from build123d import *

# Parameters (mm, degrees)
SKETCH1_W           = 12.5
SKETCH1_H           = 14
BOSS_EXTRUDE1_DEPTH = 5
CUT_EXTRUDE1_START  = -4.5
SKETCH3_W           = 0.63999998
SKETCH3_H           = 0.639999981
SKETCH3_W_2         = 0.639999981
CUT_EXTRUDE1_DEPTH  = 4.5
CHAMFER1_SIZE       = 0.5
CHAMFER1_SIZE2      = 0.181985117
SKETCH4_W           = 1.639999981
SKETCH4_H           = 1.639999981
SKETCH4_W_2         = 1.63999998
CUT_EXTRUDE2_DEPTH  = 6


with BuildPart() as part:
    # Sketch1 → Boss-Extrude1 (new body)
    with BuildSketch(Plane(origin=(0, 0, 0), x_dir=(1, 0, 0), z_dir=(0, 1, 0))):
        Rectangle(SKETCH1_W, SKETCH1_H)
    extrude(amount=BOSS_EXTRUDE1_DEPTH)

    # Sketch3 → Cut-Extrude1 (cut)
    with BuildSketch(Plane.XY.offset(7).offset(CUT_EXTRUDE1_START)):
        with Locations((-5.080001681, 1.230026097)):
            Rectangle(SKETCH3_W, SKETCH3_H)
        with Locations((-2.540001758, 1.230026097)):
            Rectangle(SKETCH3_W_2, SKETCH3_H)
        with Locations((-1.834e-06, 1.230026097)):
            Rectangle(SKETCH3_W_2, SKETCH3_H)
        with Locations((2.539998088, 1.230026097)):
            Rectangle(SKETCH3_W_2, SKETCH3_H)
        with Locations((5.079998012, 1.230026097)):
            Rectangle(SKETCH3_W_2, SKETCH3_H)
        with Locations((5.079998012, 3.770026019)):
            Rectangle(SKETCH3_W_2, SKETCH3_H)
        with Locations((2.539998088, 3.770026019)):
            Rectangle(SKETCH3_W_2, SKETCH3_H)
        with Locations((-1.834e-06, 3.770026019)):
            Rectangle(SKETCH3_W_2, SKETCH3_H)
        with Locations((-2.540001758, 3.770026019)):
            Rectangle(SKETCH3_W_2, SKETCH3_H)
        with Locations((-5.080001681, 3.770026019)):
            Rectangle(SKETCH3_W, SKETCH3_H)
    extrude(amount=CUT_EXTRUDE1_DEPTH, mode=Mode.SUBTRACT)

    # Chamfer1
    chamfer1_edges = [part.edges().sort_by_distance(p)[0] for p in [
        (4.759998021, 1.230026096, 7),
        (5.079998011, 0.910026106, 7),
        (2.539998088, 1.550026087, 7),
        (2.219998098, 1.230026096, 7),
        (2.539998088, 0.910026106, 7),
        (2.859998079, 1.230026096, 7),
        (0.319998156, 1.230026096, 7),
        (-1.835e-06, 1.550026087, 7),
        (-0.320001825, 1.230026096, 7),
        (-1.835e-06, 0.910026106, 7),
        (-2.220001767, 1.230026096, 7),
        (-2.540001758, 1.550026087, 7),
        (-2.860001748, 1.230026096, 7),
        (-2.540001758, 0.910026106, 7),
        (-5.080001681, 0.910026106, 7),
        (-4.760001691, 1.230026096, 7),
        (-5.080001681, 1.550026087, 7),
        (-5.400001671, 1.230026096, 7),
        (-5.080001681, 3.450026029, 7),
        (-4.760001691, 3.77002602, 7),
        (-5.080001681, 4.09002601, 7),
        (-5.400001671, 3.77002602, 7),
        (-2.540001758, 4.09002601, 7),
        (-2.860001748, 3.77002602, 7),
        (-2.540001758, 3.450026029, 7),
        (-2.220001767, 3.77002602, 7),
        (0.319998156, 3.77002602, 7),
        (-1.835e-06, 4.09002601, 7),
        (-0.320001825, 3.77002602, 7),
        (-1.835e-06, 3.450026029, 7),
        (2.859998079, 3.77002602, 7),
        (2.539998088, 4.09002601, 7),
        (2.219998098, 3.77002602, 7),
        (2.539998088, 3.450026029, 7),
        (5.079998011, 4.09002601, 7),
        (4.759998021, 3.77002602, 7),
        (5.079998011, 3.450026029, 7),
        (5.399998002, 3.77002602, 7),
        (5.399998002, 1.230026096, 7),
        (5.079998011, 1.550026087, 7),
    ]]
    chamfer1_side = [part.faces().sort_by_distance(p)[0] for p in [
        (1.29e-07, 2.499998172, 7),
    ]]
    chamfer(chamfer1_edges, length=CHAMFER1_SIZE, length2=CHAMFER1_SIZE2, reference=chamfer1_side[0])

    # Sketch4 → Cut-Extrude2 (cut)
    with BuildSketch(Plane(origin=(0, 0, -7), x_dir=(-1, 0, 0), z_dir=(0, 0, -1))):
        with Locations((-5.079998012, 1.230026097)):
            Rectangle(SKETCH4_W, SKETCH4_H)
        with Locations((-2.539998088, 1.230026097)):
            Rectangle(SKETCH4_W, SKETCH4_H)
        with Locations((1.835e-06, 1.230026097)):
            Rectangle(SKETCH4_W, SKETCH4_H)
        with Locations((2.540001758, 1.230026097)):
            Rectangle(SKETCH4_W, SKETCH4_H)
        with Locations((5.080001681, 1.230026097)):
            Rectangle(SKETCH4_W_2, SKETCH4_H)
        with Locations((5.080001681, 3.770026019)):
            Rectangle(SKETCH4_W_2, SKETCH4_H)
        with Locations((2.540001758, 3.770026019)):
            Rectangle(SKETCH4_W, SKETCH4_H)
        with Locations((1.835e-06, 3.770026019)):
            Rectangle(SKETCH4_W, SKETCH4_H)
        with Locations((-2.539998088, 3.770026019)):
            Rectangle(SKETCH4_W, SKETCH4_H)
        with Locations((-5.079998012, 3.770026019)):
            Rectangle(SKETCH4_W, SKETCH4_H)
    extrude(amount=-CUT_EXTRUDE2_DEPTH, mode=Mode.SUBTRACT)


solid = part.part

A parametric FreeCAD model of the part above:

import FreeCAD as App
import Part
import Sketcher
from FreeCAD import Vector
Q = App.Units.Quantity


def edges_at(feature, points):
    """Names of the edges that pass closest to the given points."""
    edges = feature.Shape.Edges
    near = lambda p: min(range(len(edges)), key=lambda i: edges[i].distToShape(Part.Vertex(*p))[0])
    return sorted({f"Edge{near(p) + 1}" for p in points})

doc = App.newDocument("Part")
params = doc.addObject("Spreadsheet::Sheet", "Params")
for row, (alias, value) in enumerate([
    ("sketch1_height", "14 mm"),
    ("sketch1_width", "12.5 mm"),
    ("pad1_length", "5 mm"),
    ("sketch2_width", "0.64 mm"),
    ("pocket1_length", "4.5 mm"),
    ("chamfer_size", "0.5 mm"),
    ("chamfer_size2", "0.181985 mm"),
    ("sketch3_width", "1.64 mm"),
    ("pocket2_length", "6 mm"),
], start=1):
    params.set(f"A{row}", alias)
    params.set(f"B{row}", "=" + value)
    params.setAlias(f"B{row}", alias)

body = doc.addObject("PartDesign::Body", "Body")

sketch1 = body.newObject("Sketcher::SketchObject", "Sketch")
sketch1.AttachmentSupport = (doc.getObject("XZ_Plane"), [""])
sketch1.MapMode = "FlatFace"
sketch1.addGeometry(Part.LineSegment(Vector(-6, -7, 0), Vector(-6, 7, 0)), False)
sketch1.addGeometry(Part.LineSegment(Vector(-6, 7, 0), Vector(6, 7, 0)), False)
sketch1.addGeometry(Part.LineSegment(Vector(6, 7, 0), Vector(6, -7, 0)), False)
sketch1.addGeometry(Part.LineSegment(Vector(6, -7, 0), Vector(-6, -7, 0)), False)
sketch1.addConstraint(Sketcher.Constraint("Coincident", 0, 2, 1, 1))
sketch1.addConstraint(Sketcher.Constraint("Coincident", 1, 2, 2, 1))
sketch1.addConstraint(Sketcher.Constraint("Coincident", 2, 2, 3, 1))
sketch1.addConstraint(Sketcher.Constraint("Coincident", 3, 2, 0, 1))
sketch1.addConstraint(Sketcher.Constraint("Vertical", 0))
sketch1.addConstraint(Sketcher.Constraint("Horizontal", 1))
sketch1.addConstraint(Sketcher.Constraint("Vertical", 2))
sketch1.addConstraint(Sketcher.Constraint("Horizontal", 3))
sketch1.addConstraint(Sketcher.Constraint("Symmetric", 0, 2, 2, 2, -1, 1))
sketch1.addConstraint(Sketcher.Constraint("DistanceY", 0, 1, 0, 2, Q("14 mm")))
sketch1.addConstraint(Sketcher.Constraint("DistanceX", 1, 1, 1, 2, Q("12.5 mm")))
sketch1.setExpression("Constraints[9]", "Params.sketch1_height")
sketch1.setExpression("Constraints[10]", "Params.sketch1_width")
pad1 = body.newObject("PartDesign::Pad", "Pad")
pad1.Profile = sketch1
pad1.setExpression("Length", "Params.pad1_length")
pad1.Reversed = True

sketch2 = body.newObject("Sketcher::SketchObject", "Sketch001")
sketch2.AttachmentSupport = (doc.getObject("XY_Plane"), [""])
sketch2.MapMode = "FlatFace"
sketch2.AttachmentOffset = App.Placement(Vector(0, 0, 2.5), App.Rotation())
sketch2.addGeometry(Part.LineSegment(Vector(-5.4, 1.6, 0), Vector(-5.4, 0.9, 0)), False)
sketch2.addGeometry(Part.LineSegment(Vector(-5.4, 0.9, 0), Vector(-4.8, 0.9, 0)), False)
sketch2.addGeometry(Part.LineSegment(Vector(-4.8, 0.9, 0), Vector(-4.8, 1.6, 0)), False)
sketch2.addGeometry(Part.LineSegment(Vector(-4.8, 1.6, 0), Vector(-5.4, 1.6, 0)), False)
sketch2.addGeometry(Part.LineSegment(Vector(-2.9, 1.6, 0), Vector(-2.9, 0.9, 0)), False)
sketch2.addGeometry(Part.LineSegment(Vector(-2.9, 0.9, 0), Vector(-2.2, 0.9, 0)), False)
sketch2.addGeometry(Part.LineSegment(Vector(-2.2, 0.9, 0), Vector(-2.2, 1.6, 0)), False)
sketch2.addGeometry(Part.LineSegment(Vector(-2.2, 1.6, 0), Vector(-2.9, 1.6, 0)), False)
sketch2.addGeometry(Part.LineSegment(Vector(-0.3, 1.6, 0), Vector(-0.3, 0.9, 0)), False)
sketch2.addGeometry(Part.LineSegment(Vector(-0.3, 0.9, 0), Vector(0.3, 0.9, 0)), False)
sketch2.addGeometry(Part.LineSegment(Vector(0.3, 0.9, 0), Vector(0.3, 1.6, 0)), False)
sketch2.addGeometry(Part.LineSegment(Vector(0.3, 1.6, 0), Vector(-0.3, 1.6, 0)), False)
sketch2.addGeometry(Part.LineSegment(Vector(2.2, 1.6, 0), Vector(2.2, 0.9, 0)), False)
sketch2.addGeometry(Part.LineSegment(Vector(2.2, 0.9, 0), Vector(2.9, 0.9, 0)), False)
sketch2.addGeometry(Part.LineSegment(Vector(2.9, 0.9, 0), Vector(2.9, 1.6, 0)), False)
sketch2.addGeometry(Part.LineSegment(Vector(2.9, 1.6, 0), Vector(2.2, 1.6, 0)), False)
sketch2.addGeometry(Part.LineSegment(Vector(4.8, 1.6, 0), Vector(4.8, 0.9, 0)), False)
sketch2.addGeometry(Part.LineSegment(Vector(4.8, 0.9, 0), Vector(5.4, 0.9, 0)), False)
sketch2.addGeometry(Part.LineSegment(Vector(5.4, 0.9, 0), Vector(5.4, 1.6, 0)), False)
sketch2.addGeometry(Part.LineSegment(Vector(5.4, 1.6, 0), Vector(4.8, 1.6, 0)), False)
sketch2.addGeometry(Part.LineSegment(Vector(4.8, 4.1, 0), Vector(4.8, 3.5, 0)), False)
sketch2.addGeometry(Part.LineSegment(Vector(4.8, 3.5, 0), Vector(5.4, 3.5, 0)), False)
sketch2.addGeometry(Part.LineSegment(Vector(5.4, 3.5, 0), Vector(5.4, 4.1, 0)), False)
sketch2.addGeometry(Part.LineSegment(Vector(5.4, 4.1, 0), Vector(4.8, 4.1, 0)), False)
sketch2.addGeometry(Part.LineSegment(Vector(2.2, 4.1, 0), Vector(2.2, 3.5, 0)), False)
sketch2.addGeometry(Part.LineSegment(Vector(2.2, 3.5, 0), Vector(2.9, 3.5, 0)), False)
sketch2.addGeometry(Part.LineSegment(Vector(2.9, 3.5, 0), Vector(2.9, 4.1, 0)), False)
sketch2.addGeometry(Part.LineSegment(Vector(2.9, 4.1, 0), Vector(2.2, 4.1, 0)), False)
sketch2.addGeometry(Part.LineSegment(Vector(-0.3, 4.1, 0), Vector(-0.3, 3.5, 0)), False)
sketch2.addGeometry(Part.LineSegment(Vector(-0.3, 3.5, 0), Vector(0.3, 3.5, 0)), False)
sketch2.addGeometry(Part.LineSegment(Vector(0.3, 3.5, 0), Vector(0.3, 4.1, 0)), False)
sketch2.addGeometry(Part.LineSegment(Vector(0.3, 4.1, 0), Vector(-0.3, 4.1, 0)), False)
sketch2.addGeometry(Part.LineSegment(Vector(-2.9, 4.1, 0), Vector(-2.9, 3.5, 0)), False)
sketch2.addGeometry(Part.LineSegment(Vector(-2.9, 3.5, 0), Vector(-2.2, 3.5, 0)), False)
sketch2.addGeometry(Part.LineSegment(Vector(-2.2, 3.5, 0), Vector(-2.2, 4.1, 0)), False)
sketch2.addGeometry(Part.LineSegment(Vector(-2.2, 4.1, 0), Vector(-2.9, 4.1, 0)), False)
sketch2.addGeometry(Part.LineSegment(Vector(-5.4, 4.1, 0), Vector(-5.4, 3.5, 0)), False)
sketch2.addGeometry(Part.LineSegment(Vector(-5.4, 3.5, 0), Vector(-4.8, 3.5, 0)), False)
sketch2.addGeometry(Part.LineSegment(Vector(-4.8, 3.5, 0), Vector(-4.8, 4.1, 0)), False)
sketch2.addGeometry(Part.LineSegment(Vector(-4.8, 4.1, 0), Vector(-5.4, 4.1, 0)), False)
sketch2.addConstraint(Sketcher.Constraint("Coincident", 0, 2, 1, 1))
sketch2.addConstraint(Sketcher.Constraint("Coincident", 1, 2, 2, 1))
sketch2.addConstraint(Sketcher.Constraint("Coincident", 2, 2, 3, 1))
sketch2.addConstraint(Sketcher.Constraint("Coincident", 3, 2, 0, 1))
sketch2.addConstraint(Sketcher.Constraint("Coincident", 4, 2, 5, 1))
sketch2.addConstraint(Sketcher.Constraint("Coincident", 5, 2, 6, 1))
sketch2.addConstraint(Sketcher.Constraint("Coincident", 6, 2, 7, 1))
sketch2.addConstraint(Sketcher.Constraint("Coincident", 7, 2, 4, 1))
sketch2.addConstraint(Sketcher.Constraint("Coincident", 8, 2, 9, 1))
sketch2.addConstraint(Sketcher.Constraint("Coincident", 9, 2, 10, 1))
sketch2.addConstraint(Sketcher.Constraint("Coincident", 10, 2, 11, 1))
sketch2.addConstraint(Sketcher.Constraint("Coincident", 11, 2, 8, 1))
sketch2.addConstraint(Sketcher.Constraint("Coincident", 12, 2, 13, 1))
sketch2.addConstraint(Sketcher.Constraint("Coincident", 13, 2, 14, 1))
sketch2.addConstraint(Sketcher.Constraint("Coincident", 14, 2, 15, 1))
sketch2.addConstraint(Sketcher.Constraint("Coincident", 15, 2, 12, 1))
sketch2.addConstraint(Sketcher.Constraint("Coincident", 16, 2, 17, 1))
sketch2.addConstraint(Sketcher.Constraint("Coincident", 17, 2, 18, 1))
sketch2.addConstraint(Sketcher.Constraint("Coincident", 18, 2, 19, 1))
sketch2.addConstraint(Sketcher.Constraint("Coincident", 19, 2, 16, 1))
sketch2.addConstraint(Sketcher.Constraint("Coincident", 20, 2, 21, 1))
sketch2.addConstraint(Sketcher.Constraint("Coincident", 21, 2, 22, 1))
sketch2.addConstraint(Sketcher.Constraint("Coincident", 22, 2, 23, 1))
sketch2.addConstraint(Sketcher.Constraint("Coincident", 23, 2, 20, 1))
sketch2.addConstraint(Sketcher.Constraint("Coincident", 24, 2, 25, 1))
sketch2.addConstraint(Sketcher.Constraint("Coincident", 25, 2, 26, 1))
sketch2.addConstraint(Sketcher.Constraint("Coincident", 26, 2, 27, 1))
sketch2.addConstraint(Sketcher.Constraint("Coincident", 27, 2, 24, 1))
sketch2.addConstraint(Sketcher.Constraint("Coincident", 28, 2, 29, 1))
sketch2.addConstraint(Sketcher.Constraint("Coincident", 29, 2, 30, 1))
sketch2.addConstraint(Sketcher.Constraint("Coincident", 30, 2, 31, 1))
sketch2.addConstraint(Sketcher.Constraint("Coincident", 31, 2, 28, 1))
sketch2.addConstraint(Sketcher.Constraint("Coincident", 32, 2, 33, 1))
sketch2.addConstraint(Sketcher.Constraint("Coincident", 33, 2, 34, 1))
sketch2.addConstraint(Sketcher.Constraint("Coincident", 34, 2, 35, 1))
sketch2.addConstraint(Sketcher.Constraint("Coincident", 35, 2, 32, 1))
sketch2.addConstraint(Sketcher.Constraint("Coincident", 36, 2, 37, 1))
sketch2.addConstraint(Sketcher.Constraint("Coincident", 37, 2, 38, 1))
sketch2.addConstraint(Sketcher.Constraint("Coincident", 38, 2, 39, 1))
sketch2.addConstraint(Sketcher.Constraint("Coincident", 39, 2, 36, 1))
sketch2.addConstraint(Sketcher.Constraint("Vertical", 0))
sketch2.addConstraint(Sketcher.Constraint("Horizontal", 1))
sketch2.addConstraint(Sketcher.Constraint("Vertical", 2))
sketch2.addConstraint(Sketcher.Constraint("Horizontal", 3))
sketch2.addConstraint(Sketcher.Constraint("Vertical", 4))
sketch2.addConstraint(Sketcher.Constraint("Horizontal", 5))
sketch2.addConstraint(Sketcher.Constraint("Vertical", 6))
sketch2.addConstraint(Sketcher.Constraint("Horizontal", 7))
sketch2.addConstraint(Sketcher.Constraint("Vertical", 8))
sketch2.addConstraint(Sketcher.Constraint("Horizontal", 9))
sketch2.addConstraint(Sketcher.Constraint("Vertical", 10))
sketch2.addConstraint(Sketcher.Constraint("Horizontal", 11))
sketch2.addConstraint(Sketcher.Constraint("Vertical", 12))
sketch2.addConstraint(Sketcher.Constraint("Horizontal", 13))
sketch2.addConstraint(Sketcher.Constraint("Vertical", 14))
sketch2.addConstraint(Sketcher.Constraint("Horizontal", 15))
sketch2.addConstraint(Sketcher.Constraint("Vertical", 16))
sketch2.addConstraint(Sketcher.Constraint("Horizontal", 17))
sketch2.addConstraint(Sketcher.Constraint("Vertical", 18))
sketch2.addConstraint(Sketcher.Constraint("Horizontal", 19))
sketch2.addConstraint(Sketcher.Constraint("Vertical", 20))
sketch2.addConstraint(Sketcher.Constraint("Horizontal", 21))
sketch2.addConstraint(Sketcher.Constraint("Vertical", 22))
sketch2.addConstraint(Sketcher.Constraint("Horizontal", 23))
sketch2.addConstraint(Sketcher.Constraint("Vertical", 24))
sketch2.addConstraint(Sketcher.Constraint("Horizontal", 25))
sketch2.addConstraint(Sketcher.Constraint("Vertical", 26))
sketch2.addConstraint(Sketcher.Constraint("Horizontal", 27))
sketch2.addConstraint(Sketcher.Constraint("Vertical", 28))
sketch2.addConstraint(Sketcher.Constraint("Horizontal", 29))
sketch2.addConstraint(Sketcher.Constraint("Vertical", 30))
sketch2.addConstraint(Sketcher.Constraint("Horizontal", 31))
sketch2.addConstraint(Sketcher.Constraint("Vertical", 32))
sketch2.addConstraint(Sketcher.Constraint("Horizontal", 33))
sketch2.addConstraint(Sketcher.Constraint("Vertical", 34))
sketch2.addConstraint(Sketcher.Constraint("Horizontal", 35))
sketch2.addConstraint(Sketcher.Constraint("Vertical", 36))
sketch2.addConstraint(Sketcher.Constraint("Horizontal", 37))
sketch2.addConstraint(Sketcher.Constraint("Vertical", 38))
sketch2.addConstraint(Sketcher.Constraint("Horizontal", 39))
sketch2.addConstraint(Sketcher.Constraint("Symmetric", 5, 2, 12, 2, -2))
sketch2.addConstraint(Sketcher.Constraint("Symmetric", 7, 2, 14, 2, -2))
sketch2.addConstraint(Sketcher.Constraint("Symmetric", 1, 2, 16, 2, -2))
sketch2.addConstraint(Sketcher.Constraint("Symmetric", 3, 2, 18, 2, -2))
sketch2.addConstraint(Sketcher.Constraint("Symmetric", 25, 2, 32, 2, -2))
sketch2.addConstraint(Sketcher.Constraint("Symmetric", 27, 2, 34, 2, -2))
sketch2.addConstraint(Sketcher.Constraint("Symmetric", 21, 2, 36, 2, -2))
sketch2.addConstraint(Sketcher.Constraint("Symmetric", 23, 2, 38, 2, -2))
sketch2.addConstraint(Sketcher.Constraint("Horizontal", 1, 2, 4, 2))
sketch2.addConstraint(Sketcher.Constraint("Horizontal", 3, 2, 6, 2))
sketch2.addConstraint(Sketcher.Constraint("Horizontal", 5, 2, 8, 2))
sketch2.addConstraint(Sketcher.Constraint("Horizontal", 7, 2, 10, 2))
sketch2.addConstraint(Sketcher.Constraint("Horizontal", 21, 2, 24, 2))
sketch2.addConstraint(Sketcher.Constraint("Horizontal", 23, 2, 26, 2))
sketch2.addConstraint(Sketcher.Constraint("Horizontal", 25, 2, 28, 2))
sketch2.addConstraint(Sketcher.Constraint("Horizontal", 27, 2, 30, 2))
sketch2.addConstraint(Sketcher.Constraint("Vertical", 19, 2, 20, 2))
sketch2.addConstraint(Sketcher.Constraint("Vertical", 18, 2, 21, 2))
sketch2.addConstraint(Sketcher.Constraint("Vertical", 15, 2, 24, 2))
sketch2.addConstraint(Sketcher.Constraint("Vertical", 14, 2, 25, 2))
sketch2.addConstraint(Sketcher.Constraint("Vertical", 11, 2, 28, 2))
sketch2.addConstraint(Sketcher.Constraint("Vertical", 10, 2, 29, 2))
sketch2.addConstraint(Sketcher.Constraint("Equal", 3, 5))
sketch2.addConstraint(Sketcher.Constraint("Equal", 7, 9))
sketch2.addConstraint(Sketcher.Constraint("Equal", 39, 0))
sketch2.addConstraint(Sketcher.Constraint("Equal", 18, 20))
sketch2.addConstraint(Sketcher.Constraint("DistanceX", 1, 1, 1, 2, Q("0.64 mm")))
sketch2.addConstraint(Sketcher.Constraint("DistanceX", 0, 2, -1, 1, Q("5.400002 mm")))
sketch2.addConstraint(Sketcher.Constraint("DistanceX", 1, 2, 4, 2, Q("1.9 mm")))
sketch2.addConstraint(Sketcher.Constraint("DistanceX", 5, 2, 8, 2, Q("1.9 mm")))
sketch2.addConstraint(Sketcher.Constraint("DistanceY", 19, 2, 20, 2, Q("1.9 mm")))
sketch2.addConstraint(Sketcher.Constraint("DistanceY", -1, 1, 0, 2, Q("0.910026 mm")))
sketch2.setExpression("Constraints[106]", "Params.sketch2_width")
pocket1 = body.newObject("PartDesign::Pocket", "Pocket")
pocket1.Profile = sketch2
pocket1.setExpression("Length", "Params.pocket1_length")
pocket1.Reversed = True
doc.recompute()

chamfer = body.newObject("PartDesign::Chamfer", "Chamfer")
chamfer.Base = (pocket1, edges_at(pocket1, [
    (4.76, 1.23, 7),
    (5.08, 0.91, 7),
    (2.54, 1.55, 7),
    (2.22, 1.23, 7),
    (2.54, 0.91, 7),
    (2.86, 1.23, 7),
    (0.32, 1.23, 7),
    (0, 1.55, 7),
    (-0.32, 1.23, 7),
    (0, 0.91, 7),
    (-2.22, 1.23, 7),
    (-2.54, 1.55, 7),
    (-2.86, 1.23, 7),
    (-2.54, 0.91, 7),
    (-5.08, 0.91, 7),
    (-4.76, 1.23, 7),
    (-5.08, 1.55, 7),
    (-5.4, 1.23, 7),
    (-5.08, 3.45, 7),
    (-4.76, 3.77, 7),
    (-5.08, 4.09, 7),
    (-5.4, 3.77, 7),
    (-2.54, 4.09, 7),
    (-2.86, 3.77, 7),
    (-2.54, 3.45, 7),
    (-2.22, 3.77, 7),
    (0.32, 3.77, 7),
    (0, 4.09, 7),
    (-0.32, 3.77, 7),
    (0, 3.45, 7),
    (2.86, 3.77, 7),
    (2.54, 4.09, 7),
    (2.22, 3.77, 7),
    (2.54, 3.45, 7),
    (5.08, 4.09, 7),
    (4.76, 3.77, 7),
    (5.08, 3.45, 7),
    (5.4, 3.77, 7),
    (5.4, 1.23, 7),
    (5.08, 1.55, 7),
]))
chamfer.ChamferType = "Two distances"
chamfer.setExpression("Size", "Params.chamfer_size")
chamfer.setExpression("Size2", "Params.chamfer_size2")

sketch3 = body.newObject("Sketcher::SketchObject", "Sketch002")
sketch3.AttachmentSupport = (doc.getObject("XY_Plane"), [""])
sketch3.MapMode = "FlatFace"
sketch3.AttachmentOffset = App.Placement(Vector(0, 0, -7), App.Rotation())
sketch3.addGeometry(Part.LineSegment(Vector(5.9, 2.1, 0), Vector(5.9, 0.4, 0)), False)
sketch3.addGeometry(Part.LineSegment(Vector(5.9, 0.4, 0), Vector(4.3, 0.4, 0)), False)
sketch3.addGeometry(Part.LineSegment(Vector(4.3, 0.4, 0), Vector(4.3, 2.1, 0)), False)
sketch3.addGeometry(Part.LineSegment(Vector(4.3, 2.1, 0), Vector(5.9, 2.1, 0)), False)
sketch3.addGeometry(Part.LineSegment(Vector(3.4, 2.1, 0), Vector(3.4, 0.4, 0)), False)
sketch3.addGeometry(Part.LineSegment(Vector(3.4, 0.4, 0), Vector(1.7, 0.4, 0)), False)
sketch3.addGeometry(Part.LineSegment(Vector(1.7, 0.4, 0), Vector(1.7, 2.1, 0)), False)
sketch3.addGeometry(Part.LineSegment(Vector(1.7, 2.1, 0), Vector(3.4, 2.1, 0)), False)
sketch3.addGeometry(Part.LineSegment(Vector(0.8, 2.1, 0), Vector(0.8, 0.4, 0)), False)
sketch3.addGeometry(Part.LineSegment(Vector(0.8, 0.4, 0), Vector(-0.8, 0.4, 0)), False)
sketch3.addGeometry(Part.LineSegment(Vector(-0.8, 0.4, 0), Vector(-0.8, 2.1, 0)), False)
sketch3.addGeometry(Part.LineSegment(Vector(-0.8, 2.1, 0), Vector(0.8, 2.1, 0)), False)
sketch3.addGeometry(Part.LineSegment(Vector(-1.7, 2.1, 0), Vector(-1.7, 0.4, 0)), False)
sketch3.addGeometry(Part.LineSegment(Vector(-1.7, 0.4, 0), Vector(-3.4, 0.4, 0)), False)
sketch3.addGeometry(Part.LineSegment(Vector(-3.4, 0.4, 0), Vector(-3.4, 2.1, 0)), False)
sketch3.addGeometry(Part.LineSegment(Vector(-3.4, 2.1, 0), Vector(-1.7, 2.1, 0)), False)
sketch3.addGeometry(Part.LineSegment(Vector(-4.3, 2.1, 0), Vector(-4.3, 0.4, 0)), False)
sketch3.addGeometry(Part.LineSegment(Vector(-4.3, 0.4, 0), Vector(-5.9, 0.4, 0)), False)
sketch3.addGeometry(Part.LineSegment(Vector(-5.9, 0.4, 0), Vector(-5.9, 2.1, 0)), False)
sketch3.addGeometry(Part.LineSegment(Vector(-5.9, 2.1, 0), Vector(-4.3, 2.1, 0)), False)
sketch3.addGeometry(Part.LineSegment(Vector(-4.3, 4.6, 0), Vector(-4.3, 3, 0)), False)
sketch3.addGeometry(Part.LineSegment(Vector(-4.3, 3, 0), Vector(-5.9, 3, 0)), False)
sketch3.addGeometry(Part.LineSegment(Vector(-5.9, 3, 0), Vector(-5.9, 4.6, 0)), False)
sketch3.addGeometry(Part.LineSegment(Vector(-5.9, 4.6, 0), Vector(-4.3, 4.6, 0)), False)
sketch3.addGeometry(Part.LineSegment(Vector(-1.7, 4.6, 0), Vector(-1.7, 3, 0)), False)
sketch3.addGeometry(Part.LineSegment(Vector(-1.7, 3, 0), Vector(-3.4, 3, 0)), False)
sketch3.addGeometry(Part.LineSegment(Vector(-3.4, 3, 0), Vector(-3.4, 4.6, 0)), False)
sketch3.addGeometry(Part.LineSegment(Vector(-3.4, 4.6, 0), Vector(-1.7, 4.6, 0)), False)
sketch3.addGeometry(Part.LineSegment(Vector(0.8, 4.6, 0), Vector(0.8, 3, 0)), False)
sketch3.addGeometry(Part.LineSegment(Vector(0.8, 3, 0), Vector(-0.8, 3, 0)), False)
sketch3.addGeometry(Part.LineSegment(Vector(-0.8, 3, 0), Vector(-0.8, 4.6, 0)), False)
sketch3.addGeometry(Part.LineSegment(Vector(-0.8, 4.6, 0), Vector(0.8, 4.6, 0)), False)
sketch3.addGeometry(Part.LineSegment(Vector(3.4, 4.6, 0), Vector(3.4, 3, 0)), False)
sketch3.addGeometry(Part.LineSegment(Vector(3.4, 3, 0), Vector(1.7, 3, 0)), False)
sketch3.addGeometry(Part.LineSegment(Vector(1.7, 3, 0), Vector(1.7, 4.6, 0)), False)
sketch3.addGeometry(Part.LineSegment(Vector(1.7, 4.6, 0), Vector(3.4, 4.6, 0)), False)
sketch3.addGeometry(Part.LineSegment(Vector(5.9, 4.6, 0), Vector(5.9, 3, 0)), False)
sketch3.addGeometry(Part.LineSegment(Vector(5.9, 3, 0), Vector(4.3, 3, 0)), False)
sketch3.addGeometry(Part.LineSegment(Vector(4.3, 3, 0), Vector(4.3, 4.6, 0)), False)
sketch3.addGeometry(Part.LineSegment(Vector(4.3, 4.6, 0), Vector(5.9, 4.6, 0)), False)
sketch3.addConstraint(Sketcher.Constraint("Coincident", 0, 2, 1, 1))
sketch3.addConstraint(Sketcher.Constraint("Coincident", 1, 2, 2, 1))
sketch3.addConstraint(Sketcher.Constraint("Coincident", 2, 2, 3, 1))
sketch3.addConstraint(Sketcher.Constraint("Coincident", 3, 2, 0, 1))
sketch3.addConstraint(Sketcher.Constraint("Coincident", 4, 2, 5, 1))
sketch3.addConstraint(Sketcher.Constraint("Coincident", 5, 2, 6, 1))
sketch3.addConstraint(Sketcher.Constraint("Coincident", 6, 2, 7, 1))
sketch3.addConstraint(Sketcher.Constraint("Coincident", 7, 2, 4, 1))
sketch3.addConstraint(Sketcher.Constraint("Coincident", 8, 2, 9, 1))
sketch3.addConstraint(Sketcher.Constraint("Coincident", 9, 2, 10, 1))
sketch3.addConstraint(Sketcher.Constraint("Coincident", 10, 2, 11, 1))
sketch3.addConstraint(Sketcher.Constraint("Coincident", 11, 2, 8, 1))
sketch3.addConstraint(Sketcher.Constraint("Coincident", 12, 2, 13, 1))
sketch3.addConstraint(Sketcher.Constraint("Coincident", 13, 2, 14, 1))
sketch3.addConstraint(Sketcher.Constraint("Coincident", 14, 2, 15, 1))
sketch3.addConstraint(Sketcher.Constraint("Coincident", 15, 2, 12, 1))
sketch3.addConstraint(Sketcher.Constraint("Coincident", 16, 2, 17, 1))
sketch3.addConstraint(Sketcher.Constraint("Coincident", 17, 2, 18, 1))
sketch3.addConstraint(Sketcher.Constraint("Coincident", 18, 2, 19, 1))
sketch3.addConstraint(Sketcher.Constraint("Coincident", 19, 2, 16, 1))
sketch3.addConstraint(Sketcher.Constraint("Coincident", 20, 2, 21, 1))
sketch3.addConstraint(Sketcher.Constraint("Coincident", 21, 2, 22, 1))
sketch3.addConstraint(Sketcher.Constraint("Coincident", 22, 2, 23, 1))
sketch3.addConstraint(Sketcher.Constraint("Coincident", 23, 2, 20, 1))
sketch3.addConstraint(Sketcher.Constraint("Coincident", 24, 2, 25, 1))
sketch3.addConstraint(Sketcher.Constraint("Coincident", 25, 2, 26, 1))
sketch3.addConstraint(Sketcher.Constraint("Coincident", 26, 2, 27, 1))
sketch3.addConstraint(Sketcher.Constraint("Coincident", 27, 2, 24, 1))
sketch3.addConstraint(Sketcher.Constraint("Coincident", 28, 2, 29, 1))
sketch3.addConstraint(Sketcher.Constraint("Coincident", 29, 2, 30, 1))
sketch3.addConstraint(Sketcher.Constraint("Coincident", 30, 2, 31, 1))
sketch3.addConstraint(Sketcher.Constraint("Coincident", 31, 2, 28, 1))
sketch3.addConstraint(Sketcher.Constraint("Coincident", 32, 2, 33, 1))
sketch3.addConstraint(Sketcher.Constraint("Coincident", 33, 2, 34, 1))
sketch3.addConstraint(Sketcher.Constraint("Coincident", 34, 2, 35, 1))
sketch3.addConstraint(Sketcher.Constraint("Coincident", 35, 2, 32, 1))
sketch3.addConstraint(Sketcher.Constraint("Coincident", 36, 2, 37, 1))
sketch3.addConstraint(Sketcher.Constraint("Coincident", 37, 2, 38, 1))
sketch3.addConstraint(Sketcher.Constraint("Coincident", 38, 2, 39, 1))
sketch3.addConstraint(Sketcher.Constraint("Coincident", 39, 2, 36, 1))
sketch3.addConstraint(Sketcher.Constraint("Vertical", 0))
sketch3.addConstraint(Sketcher.Constraint("Horizontal", 1))
sketch3.addConstraint(Sketcher.Constraint("Vertical", 2))
sketch3.addConstraint(Sketcher.Constraint("Horizontal", 3))
sketch3.addConstraint(Sketcher.Constraint("Vertical", 4))
sketch3.addConstraint(Sketcher.Constraint("Horizontal", 5))
sketch3.addConstraint(Sketcher.Constraint("Vertical", 6))
sketch3.addConstraint(Sketcher.Constraint("Horizontal", 7))
sketch3.addConstraint(Sketcher.Constraint("Vertical", 8))
sketch3.addConstraint(Sketcher.Constraint("Horizontal", 9))
sketch3.addConstraint(Sketcher.Constraint("Vertical", 10))
sketch3.addConstraint(Sketcher.Constraint("Horizontal", 11))
sketch3.addConstraint(Sketcher.Constraint("Vertical", 12))
sketch3.addConstraint(Sketcher.Constraint("Horizontal", 13))
sketch3.addConstraint(Sketcher.Constraint("Vertical", 14))
sketch3.addConstraint(Sketcher.Constraint("Horizontal", 15))
sketch3.addConstraint(Sketcher.Constraint("Vertical", 16))
sketch3.addConstraint(Sketcher.Constraint("Horizontal", 17))
sketch3.addConstraint(Sketcher.Constraint("Vertical", 18))
sketch3.addConstraint(Sketcher.Constraint("Horizontal", 19))
sketch3.addConstraint(Sketcher.Constraint("Vertical", 20))
sketch3.addConstraint(Sketcher.Constraint("Horizontal", 21))
sketch3.addConstraint(Sketcher.Constraint("Vertical", 22))
sketch3.addConstraint(Sketcher.Constraint("Horizontal", 23))
sketch3.addConstraint(Sketcher.Constraint("Vertical", 24))
sketch3.addConstraint(Sketcher.Constraint("Horizontal", 25))
sketch3.addConstraint(Sketcher.Constraint("Vertical", 26))
sketch3.addConstraint(Sketcher.Constraint("Horizontal", 27))
sketch3.addConstraint(Sketcher.Constraint("Vertical", 28))
sketch3.addConstraint(Sketcher.Constraint("Horizontal", 29))
sketch3.addConstraint(Sketcher.Constraint("Vertical", 30))
sketch3.addConstraint(Sketcher.Constraint("Horizontal", 31))
sketch3.addConstraint(Sketcher.Constraint("Vertical", 32))
sketch3.addConstraint(Sketcher.Constraint("Horizontal", 33))
sketch3.addConstraint(Sketcher.Constraint("Vertical", 34))
sketch3.addConstraint(Sketcher.Constraint("Horizontal", 35))
sketch3.addConstraint(Sketcher.Constraint("Vertical", 36))
sketch3.addConstraint(Sketcher.Constraint("Horizontal", 37))
sketch3.addConstraint(Sketcher.Constraint("Vertical", 38))
sketch3.addConstraint(Sketcher.Constraint("Horizontal", 39))
sketch3.addConstraint(Sketcher.Constraint("Symmetric", 5, 2, 12, 2, -2))
sketch3.addConstraint(Sketcher.Constraint("Symmetric", 7, 2, 14, 2, -2))
sketch3.addConstraint(Sketcher.Constraint("Symmetric", 1, 2, 16, 2, -2))
sketch3.addConstraint(Sketcher.Constraint("Symmetric", 3, 2, 18, 2, -2))
sketch3.addConstraint(Sketcher.Constraint("Symmetric", 25, 2, 32, 2, -2))
sketch3.addConstraint(Sketcher.Constraint("Symmetric", 27, 2, 34, 2, -2))
sketch3.addConstraint(Sketcher.Constraint("Symmetric", 21, 2, 36, 2, -2))
sketch3.addConstraint(Sketcher.Constraint("Symmetric", 23, 2, 38, 2, -2))
sketch3.addConstraint(Sketcher.Constraint("Horizontal", 1, 2, 4, 2))
sketch3.addConstraint(Sketcher.Constraint("Horizontal", 3, 2, 6, 2))
sketch3.addConstraint(Sketcher.Constraint("Horizontal", 5, 2, 8, 2))
sketch3.addConstraint(Sketcher.Constraint("Horizontal", 7, 2, 10, 2))
sketch3.addConstraint(Sketcher.Constraint("Horizontal", 21, 2, 24, 2))
sketch3.addConstraint(Sketcher.Constraint("Horizontal", 23, 2, 26, 2))
sketch3.addConstraint(Sketcher.Constraint("Horizontal", 25, 2, 28, 2))
sketch3.addConstraint(Sketcher.Constraint("Horizontal", 27, 2, 30, 2))
sketch3.addConstraint(Sketcher.Constraint("Vertical", 19, 2, 20, 2))
sketch3.addConstraint(Sketcher.Constraint("Vertical", 18, 2, 21, 2))
sketch3.addConstraint(Sketcher.Constraint("Vertical", 15, 2, 24, 2))
sketch3.addConstraint(Sketcher.Constraint("Vertical", 14, 2, 25, 2))
sketch3.addConstraint(Sketcher.Constraint("Vertical", 11, 2, 28, 2))
sketch3.addConstraint(Sketcher.Constraint("Vertical", 10, 2, 29, 2))
sketch3.addConstraint(Sketcher.Constraint("Equal", 3, 5))
sketch3.addConstraint(Sketcher.Constraint("Equal", 7, 9))
sketch3.addConstraint(Sketcher.Constraint("Equal", 39, 0))
sketch3.addConstraint(Sketcher.Constraint("Equal", 18, 20))
sketch3.addConstraint(Sketcher.Constraint("DistanceX", 1, 2, 1, 1, Q("1.64 mm")))
sketch3.addConstraint(Sketcher.Constraint("DistanceX", -1, 1, 0, 2, Q("5.899998 mm")))
sketch3.addConstraint(Sketcher.Constraint("DistanceX", 4, 2, 1, 2, Q("0.9 mm")))
sketch3.addConstraint(Sketcher.Constraint("DistanceX", 8, 2, 5, 2, Q("0.9 mm")))
sketch3.addConstraint(Sketcher.Constraint("DistanceY", 19, 2, 20, 2, Q("0.9 mm")))
sketch3.addConstraint(Sketcher.Constraint("DistanceY", -1, 1, 0, 2, Q("0.410026 mm")))
sketch3.setExpression("Constraints[106]", "Params.sketch3_width")
pocket2 = body.newObject("PartDesign::Pocket", "Pocket001")
pocket2.Profile = sketch3
pocket2.setExpression("Length", "Params.pocket2_length")
pocket2.Reversed = True

doc.recompute()
